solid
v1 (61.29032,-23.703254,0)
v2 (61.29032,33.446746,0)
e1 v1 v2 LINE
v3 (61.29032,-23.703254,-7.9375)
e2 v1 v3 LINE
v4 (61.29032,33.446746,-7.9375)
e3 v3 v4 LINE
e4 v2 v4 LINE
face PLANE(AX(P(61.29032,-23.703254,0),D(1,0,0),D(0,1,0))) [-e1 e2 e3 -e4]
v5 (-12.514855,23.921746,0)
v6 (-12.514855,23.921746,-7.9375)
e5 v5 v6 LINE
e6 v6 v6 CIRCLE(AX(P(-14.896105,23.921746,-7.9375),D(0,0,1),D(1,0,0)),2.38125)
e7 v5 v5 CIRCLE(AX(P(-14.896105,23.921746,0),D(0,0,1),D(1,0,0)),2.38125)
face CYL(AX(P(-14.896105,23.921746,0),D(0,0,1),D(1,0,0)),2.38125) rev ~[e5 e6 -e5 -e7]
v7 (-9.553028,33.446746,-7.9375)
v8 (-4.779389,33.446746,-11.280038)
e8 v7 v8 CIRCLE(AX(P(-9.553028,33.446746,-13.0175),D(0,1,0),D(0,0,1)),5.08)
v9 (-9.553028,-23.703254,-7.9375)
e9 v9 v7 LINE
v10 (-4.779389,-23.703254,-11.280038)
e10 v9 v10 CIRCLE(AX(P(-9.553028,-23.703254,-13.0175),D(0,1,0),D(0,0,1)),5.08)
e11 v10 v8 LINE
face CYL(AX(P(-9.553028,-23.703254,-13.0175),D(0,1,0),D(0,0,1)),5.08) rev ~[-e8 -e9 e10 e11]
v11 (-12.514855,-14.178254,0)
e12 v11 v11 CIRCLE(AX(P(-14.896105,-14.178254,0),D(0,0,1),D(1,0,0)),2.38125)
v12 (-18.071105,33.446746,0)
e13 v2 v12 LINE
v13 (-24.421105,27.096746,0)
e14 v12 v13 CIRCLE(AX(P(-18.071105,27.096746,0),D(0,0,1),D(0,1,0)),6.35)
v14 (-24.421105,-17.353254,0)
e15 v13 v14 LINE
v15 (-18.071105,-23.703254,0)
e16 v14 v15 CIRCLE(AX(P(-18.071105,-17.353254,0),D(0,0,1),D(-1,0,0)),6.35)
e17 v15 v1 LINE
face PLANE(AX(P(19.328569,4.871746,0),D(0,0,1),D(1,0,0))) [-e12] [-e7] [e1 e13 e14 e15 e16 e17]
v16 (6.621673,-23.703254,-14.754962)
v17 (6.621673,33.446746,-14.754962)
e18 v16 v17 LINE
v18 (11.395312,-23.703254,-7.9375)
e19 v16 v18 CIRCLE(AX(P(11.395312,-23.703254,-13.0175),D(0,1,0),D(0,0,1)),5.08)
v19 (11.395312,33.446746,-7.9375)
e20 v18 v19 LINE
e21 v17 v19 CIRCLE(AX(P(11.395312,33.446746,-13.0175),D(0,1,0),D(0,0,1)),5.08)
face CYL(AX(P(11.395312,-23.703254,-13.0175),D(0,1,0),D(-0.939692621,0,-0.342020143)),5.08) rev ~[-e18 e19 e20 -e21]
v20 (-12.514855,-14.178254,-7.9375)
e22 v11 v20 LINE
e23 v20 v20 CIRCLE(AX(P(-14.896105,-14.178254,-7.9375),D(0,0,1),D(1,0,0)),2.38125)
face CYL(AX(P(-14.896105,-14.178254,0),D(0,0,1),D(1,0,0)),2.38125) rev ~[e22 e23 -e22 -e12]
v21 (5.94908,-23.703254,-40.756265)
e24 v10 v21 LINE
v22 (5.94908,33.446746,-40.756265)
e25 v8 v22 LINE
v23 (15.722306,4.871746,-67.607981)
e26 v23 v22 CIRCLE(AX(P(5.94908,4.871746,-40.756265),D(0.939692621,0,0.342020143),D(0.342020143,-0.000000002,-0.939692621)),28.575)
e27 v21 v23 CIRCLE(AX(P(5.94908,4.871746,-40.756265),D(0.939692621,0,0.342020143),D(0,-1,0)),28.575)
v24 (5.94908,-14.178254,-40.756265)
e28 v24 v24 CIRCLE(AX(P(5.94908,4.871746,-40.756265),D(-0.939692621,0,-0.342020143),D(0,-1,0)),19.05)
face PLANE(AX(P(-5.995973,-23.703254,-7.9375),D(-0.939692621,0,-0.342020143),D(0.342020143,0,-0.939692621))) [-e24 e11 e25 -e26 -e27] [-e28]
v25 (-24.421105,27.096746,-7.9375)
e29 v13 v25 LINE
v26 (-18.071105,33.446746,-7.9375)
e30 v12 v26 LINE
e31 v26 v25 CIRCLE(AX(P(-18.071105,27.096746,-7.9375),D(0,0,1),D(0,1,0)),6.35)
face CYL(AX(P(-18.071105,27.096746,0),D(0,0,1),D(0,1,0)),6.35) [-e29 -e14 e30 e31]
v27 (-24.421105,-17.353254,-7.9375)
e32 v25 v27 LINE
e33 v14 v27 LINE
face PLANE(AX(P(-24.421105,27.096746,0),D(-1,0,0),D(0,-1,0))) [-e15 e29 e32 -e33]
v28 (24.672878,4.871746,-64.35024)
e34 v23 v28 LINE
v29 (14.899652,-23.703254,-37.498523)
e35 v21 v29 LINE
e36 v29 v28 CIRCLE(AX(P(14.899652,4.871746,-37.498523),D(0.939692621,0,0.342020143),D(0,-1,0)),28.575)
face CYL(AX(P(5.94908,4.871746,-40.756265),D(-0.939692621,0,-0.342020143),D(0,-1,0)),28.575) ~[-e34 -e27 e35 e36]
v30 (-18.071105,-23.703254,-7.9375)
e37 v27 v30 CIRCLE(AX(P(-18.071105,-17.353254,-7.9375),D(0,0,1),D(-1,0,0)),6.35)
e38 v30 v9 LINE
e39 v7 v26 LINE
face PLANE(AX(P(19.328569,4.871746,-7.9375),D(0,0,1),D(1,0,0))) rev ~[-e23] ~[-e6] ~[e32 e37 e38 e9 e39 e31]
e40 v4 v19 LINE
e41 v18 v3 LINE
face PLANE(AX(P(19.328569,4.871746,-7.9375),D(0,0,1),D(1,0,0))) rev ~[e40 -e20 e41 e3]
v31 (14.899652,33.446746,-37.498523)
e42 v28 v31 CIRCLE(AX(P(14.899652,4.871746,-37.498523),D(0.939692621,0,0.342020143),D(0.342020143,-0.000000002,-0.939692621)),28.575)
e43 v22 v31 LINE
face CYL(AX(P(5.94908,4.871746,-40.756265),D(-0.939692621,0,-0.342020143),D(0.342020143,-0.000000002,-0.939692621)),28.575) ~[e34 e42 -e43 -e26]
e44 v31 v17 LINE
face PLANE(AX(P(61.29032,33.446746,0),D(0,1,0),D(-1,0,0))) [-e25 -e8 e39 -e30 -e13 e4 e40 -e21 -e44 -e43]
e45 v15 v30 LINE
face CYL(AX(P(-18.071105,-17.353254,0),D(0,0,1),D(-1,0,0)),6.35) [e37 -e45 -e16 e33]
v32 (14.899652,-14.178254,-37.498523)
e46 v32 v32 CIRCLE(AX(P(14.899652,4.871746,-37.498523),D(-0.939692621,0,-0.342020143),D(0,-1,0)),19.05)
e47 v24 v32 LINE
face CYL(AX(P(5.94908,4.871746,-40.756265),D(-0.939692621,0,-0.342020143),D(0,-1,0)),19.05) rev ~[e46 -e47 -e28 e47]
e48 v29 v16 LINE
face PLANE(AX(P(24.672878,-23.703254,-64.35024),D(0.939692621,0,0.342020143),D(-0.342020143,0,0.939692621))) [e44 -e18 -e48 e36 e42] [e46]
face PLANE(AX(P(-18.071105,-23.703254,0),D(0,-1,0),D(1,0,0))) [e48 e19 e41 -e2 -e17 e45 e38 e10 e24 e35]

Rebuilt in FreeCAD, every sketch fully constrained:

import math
import FreeCAD as App
import Part
import Sketcher
from FreeCAD import Vector
Q = App.Units.Quantity


def edges_at(feature, points):
    """Names of the edges that pass closest to the given points."""
    edges = feature.Shape.Edges
    near = lambda p: min(range(len(edges)), key=lambda i: edges[i].distToShape(Part.Vertex(*p))[0])
    return sorted({f"Edge{near(p) + 1}" for p in points})

doc = App.newDocument("Part")
body = doc.addObject("PartDesign::Body", "Body")

sketch1 = body.newObject("Sketcher::SketchObject", "Sketch")
sketch1.AttachmentSupport = (doc.getObject("XY_Plane"), [""])
sketch1.MapMode = "FlatFace"
sketch1.addGeometry(Part.ArcOfCircle(Part.Circle(Vector(-18.1, 27.1, 0), Vector(0, 0, 1), 6.3), math.radians(90), math.radians(180)), False)
sketch1.addGeometry(Part.LineSegment(Vector(-24.4, 27.1, 0), Vector(-24.4, -17.4, 0)), False)
sketch1.addGeometry(Part.ArcOfCircle(Part.Circle(Vector(-18.1, -17.4, 0), Vector(0, 0, 1), 6.3), math.radians(180), math.radians(270)), False)
sketch1.addGeometry(Part.LineSegment(Vector(-18.1, -23.7, 0), Vector(61.3, -23.7, 0)), False)
sketch1.addGeometry(Part.LineSegment(Vector(61.3, -23.7, 0), Vector(61.3, 33.4, 0)), False)
sketch1.addGeometry(Part.LineSegment(Vector(61.3, 33.4, 0), Vector(-18.1, 33.4, 0)), False)
sketch1.addGeometry(Part.Circle(Vector(-14.9, -14.2, 0), Vector(0, 0, 1), 2.4), False)
sketch1.addGeometry(Part.Circle(Vector(-14.9, 23.9, 0), Vector(0, 0, 1), 2.4), False)
sketch1.addConstraint(Sketcher.Constraint("Tangent", 0, 2, 1, 1))
sketch1.addConstraint(Sketcher.Constraint("Tangent", 1, 2, 2, 1))
sketch1.addConstraint(Sketcher.Constraint("Tangent", 2, 2, 3, 1))
sketch1.addConstraint(Sketcher.Constraint("Coincident", 3, 2, 4, 1))
sketch1.addConstraint(Sketcher.Constraint("Coincident", 4, 2, 5, 1))
sketch1.addConstraint(Sketcher.Constraint("Tangent", 5, 2, 0, 1))
sketch1.addConstraint(Sketcher.Constraint("Vertical", 1))
sketch1.addConstraint(Sketcher.Constraint("Horizontal", 3))
sketch1.addConstraint(Sketcher.Constraint("Vertical", 4))
sketch1.addConstraint(Sketcher.Constraint("Horizontal", 5))
sketch1.addConstraint(Sketcher.Constraint("Equal", 0, 2))
sketch1.addConstraint(Sketcher.Constraint("Equal", 6, 7))
sketch1.addConstraint(Sketcher.Constraint("Vertical", 6, 3, 7, 3))
sketch1.addConstraint(Sketcher.Constraint("Radius", 0, Q("0.25 in")))
sketch1.addConstraint(Sketcher.Constraint("Diameter", 6, Q("0.1875 in")))
sketch1.addConstraint(Sketcher.Constraint("DistanceY", 2, 2, 0, 3, Q("2 in")))
sketch1.addConstraint(Sketcher.Constraint("DistanceY", 6, 3, 7, 3, Q("1.5 in")))
sketch1.addConstraint(Sketcher.Constraint("DistanceX", 2, 3, 6, 3, Q("0.125 in")))
sketch1.addConstraint(Sketcher.Constraint("DistanceY", 2, 3, 6, 3, Q("0.125 in")))
sketch1.addConstraint(Sketcher.Constraint("DistanceX", 3, 1, 3, 2, Q("79.361425 mm")))
sketch1.addConstraint(Sketcher.Constraint("DistanceX", -1, 1, 3, 2, Q("61.29032 mm")))
sketch1.addConstraint(Sketcher.Constraint("DistanceY", -1, 1, 0, 3, Q("27.096746 mm")))
pad1 = body.newObject("PartDesign::Pad", "Pad")
pad1.Profile = sketch1
pad1.Length = Q("0.3125 in")
pad1.Reversed = True

sketch2 = body.newObject("Sketcher::SketchObject", "Sketch001")
sketch2.AttachmentSupport = (doc.getObject("XZ_Plane"), [""])
sketch2.MapMode = "FlatFace"
sketch2.AttachmentOffset = App.Placement(Vector(0, 0, 23.703254), App.Rotation())
sketch2.addGeometry(Part.LineSegment(Vector(4, -8, 0), Vector(-6, -8, 0)), False)
sketch2.addGeometry(Part.LineSegment(Vector(-6, -8, 0), Vector(16, -68, 0)), False)
sketch2.addGeometry(Part.LineSegment(Vector(16, -68, 0), Vector(25, -64, 0)), False)
sketch2.addGeometry(Part.LineSegment(Vector(25, -64, 0), Vector(4, -8, 0)), False)
sketch2.addConstraint(Sketcher.Constraint("Coincident", 0, 2, 1, 1))
sketch2.addConstraint(Sketcher.Constraint("Coincident", 1, 2, 2, 1))
sketch2.addConstraint(Sketcher.Constraint("Coincident", 2, 2, 3, 1))
sketch2.addConstraint(Sketcher.Constraint("Coincident", 3, 2, 0, 1))
sketch2.addConstraint(Sketcher.Constraint("Horizontal", 0))
sketch2.addConstraint(Sketcher.Constraint("Perpendicular", 1, 2))
sketch2.addConstraint(Sketcher.Constraint("Perpendicular", 2, 3))
sketch2.addConstraint(Sketcher.Constraint("Angle", 1, Q("-70 deg")))
sketch2.addConstraint(Sketcher.Constraint("Distance", 1, Q("2.5 in")))
sketch2.addConstraint(Sketcher.Constraint("Distance", 2, Q("0.375 in")))
sketch2.addConstraint(Sketcher.Constraint("DistanceY", 0, 2, -1, 1, Q("0.3125 in")))
sketch2.addConstraint(Sketcher.Constraint("DistanceX", -1, 1, 2, 2, Q("24.672878 mm")))
pad2 = body.newObject("PartDesign::Pad", "Pad001")
pad2.Profile = sketch2
pad2.Length = Q("2.25 in")
pad2.Reversed = True

sketch3 = body.newObject("Sketcher::SketchObject", "Sketch002")
sketch3.Placement = App.Placement(Vector(-7.845641, 0, -2.85558), App.Rotation(Vector(0, -1, 0), Vector(-0.342020143, 0, 0.939692621), Vector(-0.939692621, 0, -0.342020143), "ZXY"))
sketch3.addGeometry(Part.Circle(Vector(-5, -40, 0), Vector(0, 0, 1), 19), False)
sketch3.addGeometry(Part.ArcOfCircle(Part.Circle(Vector(-5, -40, 0), Vector(0, 0, 1), 29), math.radians(180), math.radians(270)), False)
sketch3.addGeometry(Part.LineSegment(Vector(-33, -40, 0), Vector(-33, -69, 0)), False)
sketch3.addGeometry(Part.LineSegment(Vector(-33, -69, 0), Vector(-5, -69, 0)), False)
sketch3.addGeometry(Part.ArcOfCircle(Part.Circle(Vector(-5, -40, 0), Vector(0, 0, 1), 29), math.radians(-90), math.radians(0)), False)
sketch3.addGeometry(Part.LineSegment(Vector(-5, -69, 0), Vector(24, -69, 0)), False)
sketch3.addGeometry(Part.LineSegment(Vector(24, -69, 0), Vector(24, -40, 0)), False)
sketch3.addConstraint(Sketcher.Constraint("Tangent", 1, 1, 2, 1))
sketch3.addConstraint(Sketcher.Constraint("Coincident", 2, 2, 3, 1))
sketch3.addConstraint(Sketcher.Constraint("Tangent", 3, 2, 1, 2))
sketch3.addConstraint(Sketcher.Constraint("Tangent", 4, 1, 5, 1))
sketch3.addConstraint(Sketcher.Constraint("Coincident", 5, 2, 6, 1))
sketch3.addConstraint(Sketcher.Constraint("Tangent", 6, 2, 4, 2))
sketch3.addConstraint(Sketcher.Constraint("Vertical", 2))
sketch3.addConstraint(Sketcher.Constraint("Horizontal", 3))
sketch3.addConstraint(Sketcher.Constraint("Horizontal", 5))
sketch3.addConstraint(Sketcher.Constraint("Vertical", 6))
sketch3.addConstraint(Sketcher.Constraint("Coincident", 1, 3, 0, 3))
sketch3.addConstraint(Sketcher.Constraint("Coincident", 4, 3, 0, 3))
sketch3.addConstraint(Sketcher.Constraint("Equal", 1, 4))
sketch3.addConstraint(Sketcher.Constraint("Diameter", 0, Q("1.5 in")))
sketch3.addConstraint(Sketcher.Constraint("Radius", 1, Q("1.125 in")))
sketch3.addConstraint(Sketcher.Constraint("DistanceX", 0, 3, -1, 1, Q("4.871746 mm")))
sketch3.addConstraint(Sketcher.Constraint("DistanceY", 0, 3, -1, 1, Q("40.333067 mm")))
pocket1 = body.newObject("PartDesign::Pocket", "Pocket")
pocket1.Profile = sketch3
pocket1.Length = Q("0.375 in")
doc.recompute()

fillet = body.newObject("PartDesign::Fillet", "Fillet")
fillet.Base = (pocket1, edges_at(pocket1, [(-5.996, 4.872, -7.938), (4.14, 4.872, -7.938)]))
fillet.Radius = Q("0.2 in")

doc.recompute()
